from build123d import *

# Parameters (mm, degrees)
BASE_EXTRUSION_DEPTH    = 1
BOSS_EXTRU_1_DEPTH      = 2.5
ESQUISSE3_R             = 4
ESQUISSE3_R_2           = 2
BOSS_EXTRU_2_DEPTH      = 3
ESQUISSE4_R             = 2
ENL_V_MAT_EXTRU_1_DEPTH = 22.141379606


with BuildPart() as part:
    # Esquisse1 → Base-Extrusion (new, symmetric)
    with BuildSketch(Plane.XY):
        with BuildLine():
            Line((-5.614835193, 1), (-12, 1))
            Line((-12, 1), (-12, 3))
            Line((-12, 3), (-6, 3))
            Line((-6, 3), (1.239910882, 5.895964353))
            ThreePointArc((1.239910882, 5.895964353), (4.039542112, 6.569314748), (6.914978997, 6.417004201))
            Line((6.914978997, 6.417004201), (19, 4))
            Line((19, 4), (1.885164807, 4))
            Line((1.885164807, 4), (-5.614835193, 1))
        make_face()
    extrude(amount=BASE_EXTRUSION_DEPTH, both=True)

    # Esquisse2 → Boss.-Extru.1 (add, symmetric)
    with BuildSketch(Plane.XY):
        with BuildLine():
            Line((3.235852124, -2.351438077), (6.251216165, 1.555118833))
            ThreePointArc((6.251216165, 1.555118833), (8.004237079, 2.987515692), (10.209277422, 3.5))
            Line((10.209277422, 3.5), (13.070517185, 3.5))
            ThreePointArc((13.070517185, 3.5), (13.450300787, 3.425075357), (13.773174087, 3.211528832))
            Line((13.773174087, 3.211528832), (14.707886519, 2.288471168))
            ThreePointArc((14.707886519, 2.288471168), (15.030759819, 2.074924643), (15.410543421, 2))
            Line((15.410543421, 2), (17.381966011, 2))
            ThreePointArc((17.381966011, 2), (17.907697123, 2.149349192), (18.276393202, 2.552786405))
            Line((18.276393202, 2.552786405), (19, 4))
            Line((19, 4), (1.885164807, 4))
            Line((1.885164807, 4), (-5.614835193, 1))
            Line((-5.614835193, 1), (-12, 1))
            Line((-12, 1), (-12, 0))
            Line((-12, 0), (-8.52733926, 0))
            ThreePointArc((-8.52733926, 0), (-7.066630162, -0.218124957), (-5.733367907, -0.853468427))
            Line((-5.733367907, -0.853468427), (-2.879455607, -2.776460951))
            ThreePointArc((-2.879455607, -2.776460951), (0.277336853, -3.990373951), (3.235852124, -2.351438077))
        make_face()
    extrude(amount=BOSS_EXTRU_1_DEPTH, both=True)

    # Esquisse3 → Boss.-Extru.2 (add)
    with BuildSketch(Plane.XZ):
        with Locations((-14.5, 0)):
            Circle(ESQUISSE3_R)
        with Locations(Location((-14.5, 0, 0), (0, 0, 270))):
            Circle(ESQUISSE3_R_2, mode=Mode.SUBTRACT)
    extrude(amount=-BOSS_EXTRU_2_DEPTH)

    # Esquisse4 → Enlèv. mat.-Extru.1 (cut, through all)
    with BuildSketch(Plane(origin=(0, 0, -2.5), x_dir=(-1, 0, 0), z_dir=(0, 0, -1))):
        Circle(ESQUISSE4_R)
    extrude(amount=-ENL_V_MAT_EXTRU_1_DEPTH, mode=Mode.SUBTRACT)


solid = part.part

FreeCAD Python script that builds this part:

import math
import FreeCAD as App
import Part
import Sketcher

V = App.Vector

doc = App.newDocument("Part")
body = doc.addObject("PartDesign::Body", "Body")

sketch1 = body.newObject("Sketcher::SketchObject", "Sketch")
sketch1.AttachmentSupport = (doc.getObject("XY_Plane"), [""])
sketch1.MapMode = "FlatFace"
sketch1.addGeometry([
    Part.LineSegment(V(-12, 1, 0), V(-5.6, 1, 0)),
    Part.LineSegment(V(-5.6, 1, 0), V(1.9, 4, 0)),
    Part.LineSegment(V(1.9, 4, 0), V(19, 4, 0)),
    Part.LineSegment(V(19, 4, 0), V(6.9, 6.4, 0)),
    Part.ArcOfCircle(Part.Circle(V(5, -3.4, 0), V(0, 0, 1), 10), math.radians(79), math.radians(112)),
    Part.LineSegment(V(1.2, 5.9, 0), V(-6, 3, 0)),
    Part.LineSegment(V(-6, 3, 0), V(-12, 3, 0)),
    Part.LineSegment(V(-12, 3, 0), V(-12, 1, 0)),
], False)
sketch1.addConstraint([
    Sketcher.Constraint("Coincident", 0, 2, 1, 1),
    Sketcher.Constraint("Coincident", 1, 2, 2, 1),
    Sketcher.Constraint("Coincident", 2, 2, 3, 1),
    Sketcher.Constraint("Tangent", 3, 2, 4, 1),
    Sketcher.Constraint("Tangent", 4, 2, 5, 1),
    Sketcher.Constraint("Coincident", 5, 2, 6, 1),
    Sketcher.Constraint("Coincident", 6, 2, 7, 1),
    Sketcher.Constraint("Coincident", 7, 2, 0, 1),
    Sketcher.Constraint("Horizontal", 0),
    Sketcher.Constraint("Horizontal", 2),
    Sketcher.Constraint("Horizontal", 6),
    Sketcher.Constraint("Vertical", 7),
    Sketcher.Constraint("Parallel", 1, 5),
    Sketcher.Constraint("Radius", 4, 10.0),
    Sketcher.Constraint("DistanceX", 6, 2, 6, 1, 6.0),
    Sketcher.Constraint("DistanceY", 7, 2, 7, 1, 2.0),
    Sketcher.Constraint("DistanceY", -1, 1, 0, 2, 1.0),
    Sketcher.Constraint("DistanceY", -1, 1, 1, 2, 4.0),
    Sketcher.Constraint("DistanceX", -1, 1, 2, 2, 19.0),
    Sketcher.Constraint("DistanceX", 5, 2, -1, 1, 6.0),
    Sketcher.Constraint("DistanceX", 0, 2, 1, 2, 7.5),
    Sketcher.Constraint("Distance", 3, 12.324352),
    Sketcher.Constraint("DistanceX", 0, 1, 0, 2, 6.385165),
])
pad1 = body.newObject("PartDesign::Pad", "Pad")
pad1.Profile = sketch1
pad1.Length = 2
pad1.Midplane = True

sketch2 = body.newObject("Sketcher::SketchObject", "Sketch001")
sketch2.AttachmentSupport = (doc.getObject("XY_Plane"), [""])
sketch2.MapMode = "FlatFace"
sketch2.addGeometry([
    Part.LineSegment(V(3.2, -2.4, 0), V(6.3, 1.6, 0)),
    Part.ArcOfCircle(Part.Circle(V(10.2, -1.5, 0), V(0, 0, 1), 5), math.radians(90), math.radians(142)),
    Part.LineSegment(V(10.2, 3.5, 0), V(13.1, 3.5, 0)),
    Part.ArcOfCircle(Part.Circle(V(13.1, 2.5, 0), V(0, 0, 1), 1), math.radians(45), math.radians(90)),
    Part.LineSegment(V(13.8, 3.2, 0), V(14.7, 2.3, 0)),
    Part.ArcOfCircle(Part.Circle(V(15.4, 3, 0), V(0, 0, 1), 1), math.radians(-135), math.radians(-90)),
    Part.LineSegment(V(15.4, 2, 0), V(17.4, 2, 0)),
    Part.ArcOfCircle(Part.Circle(V(17.4, 3, 0), V(0, 0, 1), 1), math.radians(-90), math.radians(-27)),
    Part.LineSegment(V(18.3, 2.6, 0), V(19, 4, 0)),
    Part.LineSegment(V(19, 4, 0), V(1.9, 4, 0)),
    Part.LineSegment(V(1.9, 4, 0), V(-5.6, 1, 0)),
    Part.LineSegment(V(-5.6, 1, 0), V(-12, 1, 0)),
    Part.LineSegment(V(-12, 1, 0), V(-12, 0, 0)),
    Part.LineSegment(V(-12, 0, 0), V(-8.5, 0, 0)),
    Part.ArcOfCircle(Part.Circle(V(-8.5, -5, 0), V(0, 0, 1), 5), math.radians(56), math.radians(90)),
    Part.LineSegment(V(-5.7, -0.9, 0), V(-2.9, -2.8, 0)),
    Part.ArcOfCircle(Part.Circle(V(0, 0, 0), V(0, 0, 1), 4), math.radians(-136), math.radians(-36)),
], False)
sketch2.addConstraint([
    Sketcher.Constraint("Tangent", 0, 2, 1, 2),
    Sketcher.Constraint("Tangent", 1, 1, 2, 1),
    Sketcher.Constraint("Tangent", 2, 2, 3, 2),
    Sketcher.Constraint("Tangent", 3, 1, 4, 1),
    Sketcher.Constraint("Tangent", 4, 2, 5, 1),
    Sketcher.Constraint("Tangent", 5, 2, 6, 1),
    Sketcher.Constraint("Tangent", 6, 2, 7, 1),
    Sketcher.Constraint("Tangent", 7, 2, 8, 1),
    Sketcher.Constraint("Coincident", 8, 2, 9, 1),
    Sketcher.Constraint("Coincident", 9, 2, 10, 1),
    Sketcher.Constraint("Coincident", 10, 2, 11, 1),
    Sketcher.Constraint("Coincident", 11, 2, 12, 1),
    Sketcher.Constraint("Coincident", 12, 2, 13, 1),
    Sketcher.Constraint("Tangent", 13, 2, 14, 2),
    Sketcher.Constraint("Tangent", 14, 1, 15, 1),
    Sketcher.Constraint("Coincident", 15, 2, 16, 1),
    Sketcher.Constraint("Coincident", 16, 2, 0, 1),
    Sketcher.Constraint("Horizontal", 2),
    Sketcher.Constraint("Horizontal", 6),
    Sketcher.Constraint("Horizontal", 9),
    Sketcher.Constraint("Horizontal", 11),
    Sketcher.Constraint("Vertical", 12),
    Sketcher.Constraint("Horizontal", 13),
    Sketcher.Constraint("Coincident", 16, 3, -1, 1),
    Sketcher.Constraint("Equal", 3, 5),
    Sketcher.Constraint("Equal", 5, 7),
    Sketcher.Constraint("Equal", 1, 14),
    Sketcher.Constraint("PointOnObject", 12, 2, -1),
    Sketcher.Constraint("Radius", 1, 5.0),
    Sketcher.Constraint("Radius", 3, 1.0),
    Sketcher.Constraint("Radius", 16, 4.0),
    Sketcher.Constraint("DistanceY", 12, 2, 12, 1, 1.0),
    Sketcher.Constraint("DistanceY", -1, 1, 5, 3, 3.0),
    Sketcher.Constraint("DistanceX", -1, 1, 8, 2, 19.0),
    Sketcher.Constraint("DistanceY", -1, 1, 8, 2, 4.0),
    Sketcher.Constraint("DistanceX", 11, 2, -1, 1, 12.0),
    Sketcher.Constraint("DistanceY", 1, 3, -1, 1, 1.5),
    Sketcher.Constraint("DistanceX", 10, 2, 9, 2, 7.5),
    Sketcher.Constraint("DistanceX", 2, 1, 2, 2, 2.86124),
    Sketcher.Constraint("DistanceX", 13, 1, 13, 2, 3.472661),
    Sketcher.Constraint("DistanceX", 0, 2, 3, 3, 6.819301),
    Sketcher.Constraint("DistanceX", 6, 1, 6, 2, 1.971423),
    Sketcher.Constraint("DistanceX", 9, 2, 9, 1, 17.114835),
    Sketcher.Constraint("DistanceY", -1, 1, 3, 1, 3.211529),
    Sketcher.Constraint("DistanceY", 14, 1, -1, 1, 0.853468),
    Sketcher.Constraint("DistanceY", 16, 2, -1, 1, 2.351438),
])
pad2 = body.newObject("PartDesign::Pad", "Pad001")
pad2.Profile = sketch2
pad2.Length = 5
pad2.Midplane = True

sketch3 = body.newObject("Sketcher::SketchObject", "Sketch002")
sketch3.AttachmentSupport = (doc.getObject("XZ_Plane"), [""])
sketch3.MapMode = "FlatFace"
sketch3.addGeometry([
    Part.Circle(V(-14.5, 0, 0), V(0, 0, 1), 4),
    Part.Circle(V(-14.5, 0, 0), V(0, 0, 1), 2),
], False)
sketch3.addConstraint([
    Sketcher.Constraint("Coincident", 1, 3, 0, 3),
    Sketcher.Constraint("PointOnObject", 0, 3, -1),
    Sketcher.Constraint("Diameter", 0, 8.0),
    Sketcher.Constraint("Diameter", 1, 4.0),
    Sketcher.Constraint("DistanceX", 0, 3, -1, 1, 14.5),
])
pad3 = body.newObject("PartDesign::Pad", "Pad002")
pad3.Profile = sketch3
pad3.Length = 3
pad3.Reversed = True

sketch4 = body.newObject("Sketcher::SketchObject", "Sketch003")
sketch4.AttachmentSupport = (doc.getObject("XY_Plane"), [""])
sketch4.MapMode = "FlatFace"
sketch4.AttachmentOffset = App.Placement(V(0, 0, -2.5), App.Rotation())
sketch4.addGeometry(Part.Circle(V(0, 0, 0), V(0, 0, 1), 2), False)
sketch4.addConstraint([
    Sketcher.Constraint("Coincident", 0, 3, -1, 1),
    Sketcher.Constraint("Diameter", 0, 4.0),
])
pocket1 = body.newObject("PartDesign::Pocket", "Pocket")
pocket1.Profile = sketch4
pocket1.Type = "ThroughAll"
pocket1.Reversed = True

doc.recompute()
